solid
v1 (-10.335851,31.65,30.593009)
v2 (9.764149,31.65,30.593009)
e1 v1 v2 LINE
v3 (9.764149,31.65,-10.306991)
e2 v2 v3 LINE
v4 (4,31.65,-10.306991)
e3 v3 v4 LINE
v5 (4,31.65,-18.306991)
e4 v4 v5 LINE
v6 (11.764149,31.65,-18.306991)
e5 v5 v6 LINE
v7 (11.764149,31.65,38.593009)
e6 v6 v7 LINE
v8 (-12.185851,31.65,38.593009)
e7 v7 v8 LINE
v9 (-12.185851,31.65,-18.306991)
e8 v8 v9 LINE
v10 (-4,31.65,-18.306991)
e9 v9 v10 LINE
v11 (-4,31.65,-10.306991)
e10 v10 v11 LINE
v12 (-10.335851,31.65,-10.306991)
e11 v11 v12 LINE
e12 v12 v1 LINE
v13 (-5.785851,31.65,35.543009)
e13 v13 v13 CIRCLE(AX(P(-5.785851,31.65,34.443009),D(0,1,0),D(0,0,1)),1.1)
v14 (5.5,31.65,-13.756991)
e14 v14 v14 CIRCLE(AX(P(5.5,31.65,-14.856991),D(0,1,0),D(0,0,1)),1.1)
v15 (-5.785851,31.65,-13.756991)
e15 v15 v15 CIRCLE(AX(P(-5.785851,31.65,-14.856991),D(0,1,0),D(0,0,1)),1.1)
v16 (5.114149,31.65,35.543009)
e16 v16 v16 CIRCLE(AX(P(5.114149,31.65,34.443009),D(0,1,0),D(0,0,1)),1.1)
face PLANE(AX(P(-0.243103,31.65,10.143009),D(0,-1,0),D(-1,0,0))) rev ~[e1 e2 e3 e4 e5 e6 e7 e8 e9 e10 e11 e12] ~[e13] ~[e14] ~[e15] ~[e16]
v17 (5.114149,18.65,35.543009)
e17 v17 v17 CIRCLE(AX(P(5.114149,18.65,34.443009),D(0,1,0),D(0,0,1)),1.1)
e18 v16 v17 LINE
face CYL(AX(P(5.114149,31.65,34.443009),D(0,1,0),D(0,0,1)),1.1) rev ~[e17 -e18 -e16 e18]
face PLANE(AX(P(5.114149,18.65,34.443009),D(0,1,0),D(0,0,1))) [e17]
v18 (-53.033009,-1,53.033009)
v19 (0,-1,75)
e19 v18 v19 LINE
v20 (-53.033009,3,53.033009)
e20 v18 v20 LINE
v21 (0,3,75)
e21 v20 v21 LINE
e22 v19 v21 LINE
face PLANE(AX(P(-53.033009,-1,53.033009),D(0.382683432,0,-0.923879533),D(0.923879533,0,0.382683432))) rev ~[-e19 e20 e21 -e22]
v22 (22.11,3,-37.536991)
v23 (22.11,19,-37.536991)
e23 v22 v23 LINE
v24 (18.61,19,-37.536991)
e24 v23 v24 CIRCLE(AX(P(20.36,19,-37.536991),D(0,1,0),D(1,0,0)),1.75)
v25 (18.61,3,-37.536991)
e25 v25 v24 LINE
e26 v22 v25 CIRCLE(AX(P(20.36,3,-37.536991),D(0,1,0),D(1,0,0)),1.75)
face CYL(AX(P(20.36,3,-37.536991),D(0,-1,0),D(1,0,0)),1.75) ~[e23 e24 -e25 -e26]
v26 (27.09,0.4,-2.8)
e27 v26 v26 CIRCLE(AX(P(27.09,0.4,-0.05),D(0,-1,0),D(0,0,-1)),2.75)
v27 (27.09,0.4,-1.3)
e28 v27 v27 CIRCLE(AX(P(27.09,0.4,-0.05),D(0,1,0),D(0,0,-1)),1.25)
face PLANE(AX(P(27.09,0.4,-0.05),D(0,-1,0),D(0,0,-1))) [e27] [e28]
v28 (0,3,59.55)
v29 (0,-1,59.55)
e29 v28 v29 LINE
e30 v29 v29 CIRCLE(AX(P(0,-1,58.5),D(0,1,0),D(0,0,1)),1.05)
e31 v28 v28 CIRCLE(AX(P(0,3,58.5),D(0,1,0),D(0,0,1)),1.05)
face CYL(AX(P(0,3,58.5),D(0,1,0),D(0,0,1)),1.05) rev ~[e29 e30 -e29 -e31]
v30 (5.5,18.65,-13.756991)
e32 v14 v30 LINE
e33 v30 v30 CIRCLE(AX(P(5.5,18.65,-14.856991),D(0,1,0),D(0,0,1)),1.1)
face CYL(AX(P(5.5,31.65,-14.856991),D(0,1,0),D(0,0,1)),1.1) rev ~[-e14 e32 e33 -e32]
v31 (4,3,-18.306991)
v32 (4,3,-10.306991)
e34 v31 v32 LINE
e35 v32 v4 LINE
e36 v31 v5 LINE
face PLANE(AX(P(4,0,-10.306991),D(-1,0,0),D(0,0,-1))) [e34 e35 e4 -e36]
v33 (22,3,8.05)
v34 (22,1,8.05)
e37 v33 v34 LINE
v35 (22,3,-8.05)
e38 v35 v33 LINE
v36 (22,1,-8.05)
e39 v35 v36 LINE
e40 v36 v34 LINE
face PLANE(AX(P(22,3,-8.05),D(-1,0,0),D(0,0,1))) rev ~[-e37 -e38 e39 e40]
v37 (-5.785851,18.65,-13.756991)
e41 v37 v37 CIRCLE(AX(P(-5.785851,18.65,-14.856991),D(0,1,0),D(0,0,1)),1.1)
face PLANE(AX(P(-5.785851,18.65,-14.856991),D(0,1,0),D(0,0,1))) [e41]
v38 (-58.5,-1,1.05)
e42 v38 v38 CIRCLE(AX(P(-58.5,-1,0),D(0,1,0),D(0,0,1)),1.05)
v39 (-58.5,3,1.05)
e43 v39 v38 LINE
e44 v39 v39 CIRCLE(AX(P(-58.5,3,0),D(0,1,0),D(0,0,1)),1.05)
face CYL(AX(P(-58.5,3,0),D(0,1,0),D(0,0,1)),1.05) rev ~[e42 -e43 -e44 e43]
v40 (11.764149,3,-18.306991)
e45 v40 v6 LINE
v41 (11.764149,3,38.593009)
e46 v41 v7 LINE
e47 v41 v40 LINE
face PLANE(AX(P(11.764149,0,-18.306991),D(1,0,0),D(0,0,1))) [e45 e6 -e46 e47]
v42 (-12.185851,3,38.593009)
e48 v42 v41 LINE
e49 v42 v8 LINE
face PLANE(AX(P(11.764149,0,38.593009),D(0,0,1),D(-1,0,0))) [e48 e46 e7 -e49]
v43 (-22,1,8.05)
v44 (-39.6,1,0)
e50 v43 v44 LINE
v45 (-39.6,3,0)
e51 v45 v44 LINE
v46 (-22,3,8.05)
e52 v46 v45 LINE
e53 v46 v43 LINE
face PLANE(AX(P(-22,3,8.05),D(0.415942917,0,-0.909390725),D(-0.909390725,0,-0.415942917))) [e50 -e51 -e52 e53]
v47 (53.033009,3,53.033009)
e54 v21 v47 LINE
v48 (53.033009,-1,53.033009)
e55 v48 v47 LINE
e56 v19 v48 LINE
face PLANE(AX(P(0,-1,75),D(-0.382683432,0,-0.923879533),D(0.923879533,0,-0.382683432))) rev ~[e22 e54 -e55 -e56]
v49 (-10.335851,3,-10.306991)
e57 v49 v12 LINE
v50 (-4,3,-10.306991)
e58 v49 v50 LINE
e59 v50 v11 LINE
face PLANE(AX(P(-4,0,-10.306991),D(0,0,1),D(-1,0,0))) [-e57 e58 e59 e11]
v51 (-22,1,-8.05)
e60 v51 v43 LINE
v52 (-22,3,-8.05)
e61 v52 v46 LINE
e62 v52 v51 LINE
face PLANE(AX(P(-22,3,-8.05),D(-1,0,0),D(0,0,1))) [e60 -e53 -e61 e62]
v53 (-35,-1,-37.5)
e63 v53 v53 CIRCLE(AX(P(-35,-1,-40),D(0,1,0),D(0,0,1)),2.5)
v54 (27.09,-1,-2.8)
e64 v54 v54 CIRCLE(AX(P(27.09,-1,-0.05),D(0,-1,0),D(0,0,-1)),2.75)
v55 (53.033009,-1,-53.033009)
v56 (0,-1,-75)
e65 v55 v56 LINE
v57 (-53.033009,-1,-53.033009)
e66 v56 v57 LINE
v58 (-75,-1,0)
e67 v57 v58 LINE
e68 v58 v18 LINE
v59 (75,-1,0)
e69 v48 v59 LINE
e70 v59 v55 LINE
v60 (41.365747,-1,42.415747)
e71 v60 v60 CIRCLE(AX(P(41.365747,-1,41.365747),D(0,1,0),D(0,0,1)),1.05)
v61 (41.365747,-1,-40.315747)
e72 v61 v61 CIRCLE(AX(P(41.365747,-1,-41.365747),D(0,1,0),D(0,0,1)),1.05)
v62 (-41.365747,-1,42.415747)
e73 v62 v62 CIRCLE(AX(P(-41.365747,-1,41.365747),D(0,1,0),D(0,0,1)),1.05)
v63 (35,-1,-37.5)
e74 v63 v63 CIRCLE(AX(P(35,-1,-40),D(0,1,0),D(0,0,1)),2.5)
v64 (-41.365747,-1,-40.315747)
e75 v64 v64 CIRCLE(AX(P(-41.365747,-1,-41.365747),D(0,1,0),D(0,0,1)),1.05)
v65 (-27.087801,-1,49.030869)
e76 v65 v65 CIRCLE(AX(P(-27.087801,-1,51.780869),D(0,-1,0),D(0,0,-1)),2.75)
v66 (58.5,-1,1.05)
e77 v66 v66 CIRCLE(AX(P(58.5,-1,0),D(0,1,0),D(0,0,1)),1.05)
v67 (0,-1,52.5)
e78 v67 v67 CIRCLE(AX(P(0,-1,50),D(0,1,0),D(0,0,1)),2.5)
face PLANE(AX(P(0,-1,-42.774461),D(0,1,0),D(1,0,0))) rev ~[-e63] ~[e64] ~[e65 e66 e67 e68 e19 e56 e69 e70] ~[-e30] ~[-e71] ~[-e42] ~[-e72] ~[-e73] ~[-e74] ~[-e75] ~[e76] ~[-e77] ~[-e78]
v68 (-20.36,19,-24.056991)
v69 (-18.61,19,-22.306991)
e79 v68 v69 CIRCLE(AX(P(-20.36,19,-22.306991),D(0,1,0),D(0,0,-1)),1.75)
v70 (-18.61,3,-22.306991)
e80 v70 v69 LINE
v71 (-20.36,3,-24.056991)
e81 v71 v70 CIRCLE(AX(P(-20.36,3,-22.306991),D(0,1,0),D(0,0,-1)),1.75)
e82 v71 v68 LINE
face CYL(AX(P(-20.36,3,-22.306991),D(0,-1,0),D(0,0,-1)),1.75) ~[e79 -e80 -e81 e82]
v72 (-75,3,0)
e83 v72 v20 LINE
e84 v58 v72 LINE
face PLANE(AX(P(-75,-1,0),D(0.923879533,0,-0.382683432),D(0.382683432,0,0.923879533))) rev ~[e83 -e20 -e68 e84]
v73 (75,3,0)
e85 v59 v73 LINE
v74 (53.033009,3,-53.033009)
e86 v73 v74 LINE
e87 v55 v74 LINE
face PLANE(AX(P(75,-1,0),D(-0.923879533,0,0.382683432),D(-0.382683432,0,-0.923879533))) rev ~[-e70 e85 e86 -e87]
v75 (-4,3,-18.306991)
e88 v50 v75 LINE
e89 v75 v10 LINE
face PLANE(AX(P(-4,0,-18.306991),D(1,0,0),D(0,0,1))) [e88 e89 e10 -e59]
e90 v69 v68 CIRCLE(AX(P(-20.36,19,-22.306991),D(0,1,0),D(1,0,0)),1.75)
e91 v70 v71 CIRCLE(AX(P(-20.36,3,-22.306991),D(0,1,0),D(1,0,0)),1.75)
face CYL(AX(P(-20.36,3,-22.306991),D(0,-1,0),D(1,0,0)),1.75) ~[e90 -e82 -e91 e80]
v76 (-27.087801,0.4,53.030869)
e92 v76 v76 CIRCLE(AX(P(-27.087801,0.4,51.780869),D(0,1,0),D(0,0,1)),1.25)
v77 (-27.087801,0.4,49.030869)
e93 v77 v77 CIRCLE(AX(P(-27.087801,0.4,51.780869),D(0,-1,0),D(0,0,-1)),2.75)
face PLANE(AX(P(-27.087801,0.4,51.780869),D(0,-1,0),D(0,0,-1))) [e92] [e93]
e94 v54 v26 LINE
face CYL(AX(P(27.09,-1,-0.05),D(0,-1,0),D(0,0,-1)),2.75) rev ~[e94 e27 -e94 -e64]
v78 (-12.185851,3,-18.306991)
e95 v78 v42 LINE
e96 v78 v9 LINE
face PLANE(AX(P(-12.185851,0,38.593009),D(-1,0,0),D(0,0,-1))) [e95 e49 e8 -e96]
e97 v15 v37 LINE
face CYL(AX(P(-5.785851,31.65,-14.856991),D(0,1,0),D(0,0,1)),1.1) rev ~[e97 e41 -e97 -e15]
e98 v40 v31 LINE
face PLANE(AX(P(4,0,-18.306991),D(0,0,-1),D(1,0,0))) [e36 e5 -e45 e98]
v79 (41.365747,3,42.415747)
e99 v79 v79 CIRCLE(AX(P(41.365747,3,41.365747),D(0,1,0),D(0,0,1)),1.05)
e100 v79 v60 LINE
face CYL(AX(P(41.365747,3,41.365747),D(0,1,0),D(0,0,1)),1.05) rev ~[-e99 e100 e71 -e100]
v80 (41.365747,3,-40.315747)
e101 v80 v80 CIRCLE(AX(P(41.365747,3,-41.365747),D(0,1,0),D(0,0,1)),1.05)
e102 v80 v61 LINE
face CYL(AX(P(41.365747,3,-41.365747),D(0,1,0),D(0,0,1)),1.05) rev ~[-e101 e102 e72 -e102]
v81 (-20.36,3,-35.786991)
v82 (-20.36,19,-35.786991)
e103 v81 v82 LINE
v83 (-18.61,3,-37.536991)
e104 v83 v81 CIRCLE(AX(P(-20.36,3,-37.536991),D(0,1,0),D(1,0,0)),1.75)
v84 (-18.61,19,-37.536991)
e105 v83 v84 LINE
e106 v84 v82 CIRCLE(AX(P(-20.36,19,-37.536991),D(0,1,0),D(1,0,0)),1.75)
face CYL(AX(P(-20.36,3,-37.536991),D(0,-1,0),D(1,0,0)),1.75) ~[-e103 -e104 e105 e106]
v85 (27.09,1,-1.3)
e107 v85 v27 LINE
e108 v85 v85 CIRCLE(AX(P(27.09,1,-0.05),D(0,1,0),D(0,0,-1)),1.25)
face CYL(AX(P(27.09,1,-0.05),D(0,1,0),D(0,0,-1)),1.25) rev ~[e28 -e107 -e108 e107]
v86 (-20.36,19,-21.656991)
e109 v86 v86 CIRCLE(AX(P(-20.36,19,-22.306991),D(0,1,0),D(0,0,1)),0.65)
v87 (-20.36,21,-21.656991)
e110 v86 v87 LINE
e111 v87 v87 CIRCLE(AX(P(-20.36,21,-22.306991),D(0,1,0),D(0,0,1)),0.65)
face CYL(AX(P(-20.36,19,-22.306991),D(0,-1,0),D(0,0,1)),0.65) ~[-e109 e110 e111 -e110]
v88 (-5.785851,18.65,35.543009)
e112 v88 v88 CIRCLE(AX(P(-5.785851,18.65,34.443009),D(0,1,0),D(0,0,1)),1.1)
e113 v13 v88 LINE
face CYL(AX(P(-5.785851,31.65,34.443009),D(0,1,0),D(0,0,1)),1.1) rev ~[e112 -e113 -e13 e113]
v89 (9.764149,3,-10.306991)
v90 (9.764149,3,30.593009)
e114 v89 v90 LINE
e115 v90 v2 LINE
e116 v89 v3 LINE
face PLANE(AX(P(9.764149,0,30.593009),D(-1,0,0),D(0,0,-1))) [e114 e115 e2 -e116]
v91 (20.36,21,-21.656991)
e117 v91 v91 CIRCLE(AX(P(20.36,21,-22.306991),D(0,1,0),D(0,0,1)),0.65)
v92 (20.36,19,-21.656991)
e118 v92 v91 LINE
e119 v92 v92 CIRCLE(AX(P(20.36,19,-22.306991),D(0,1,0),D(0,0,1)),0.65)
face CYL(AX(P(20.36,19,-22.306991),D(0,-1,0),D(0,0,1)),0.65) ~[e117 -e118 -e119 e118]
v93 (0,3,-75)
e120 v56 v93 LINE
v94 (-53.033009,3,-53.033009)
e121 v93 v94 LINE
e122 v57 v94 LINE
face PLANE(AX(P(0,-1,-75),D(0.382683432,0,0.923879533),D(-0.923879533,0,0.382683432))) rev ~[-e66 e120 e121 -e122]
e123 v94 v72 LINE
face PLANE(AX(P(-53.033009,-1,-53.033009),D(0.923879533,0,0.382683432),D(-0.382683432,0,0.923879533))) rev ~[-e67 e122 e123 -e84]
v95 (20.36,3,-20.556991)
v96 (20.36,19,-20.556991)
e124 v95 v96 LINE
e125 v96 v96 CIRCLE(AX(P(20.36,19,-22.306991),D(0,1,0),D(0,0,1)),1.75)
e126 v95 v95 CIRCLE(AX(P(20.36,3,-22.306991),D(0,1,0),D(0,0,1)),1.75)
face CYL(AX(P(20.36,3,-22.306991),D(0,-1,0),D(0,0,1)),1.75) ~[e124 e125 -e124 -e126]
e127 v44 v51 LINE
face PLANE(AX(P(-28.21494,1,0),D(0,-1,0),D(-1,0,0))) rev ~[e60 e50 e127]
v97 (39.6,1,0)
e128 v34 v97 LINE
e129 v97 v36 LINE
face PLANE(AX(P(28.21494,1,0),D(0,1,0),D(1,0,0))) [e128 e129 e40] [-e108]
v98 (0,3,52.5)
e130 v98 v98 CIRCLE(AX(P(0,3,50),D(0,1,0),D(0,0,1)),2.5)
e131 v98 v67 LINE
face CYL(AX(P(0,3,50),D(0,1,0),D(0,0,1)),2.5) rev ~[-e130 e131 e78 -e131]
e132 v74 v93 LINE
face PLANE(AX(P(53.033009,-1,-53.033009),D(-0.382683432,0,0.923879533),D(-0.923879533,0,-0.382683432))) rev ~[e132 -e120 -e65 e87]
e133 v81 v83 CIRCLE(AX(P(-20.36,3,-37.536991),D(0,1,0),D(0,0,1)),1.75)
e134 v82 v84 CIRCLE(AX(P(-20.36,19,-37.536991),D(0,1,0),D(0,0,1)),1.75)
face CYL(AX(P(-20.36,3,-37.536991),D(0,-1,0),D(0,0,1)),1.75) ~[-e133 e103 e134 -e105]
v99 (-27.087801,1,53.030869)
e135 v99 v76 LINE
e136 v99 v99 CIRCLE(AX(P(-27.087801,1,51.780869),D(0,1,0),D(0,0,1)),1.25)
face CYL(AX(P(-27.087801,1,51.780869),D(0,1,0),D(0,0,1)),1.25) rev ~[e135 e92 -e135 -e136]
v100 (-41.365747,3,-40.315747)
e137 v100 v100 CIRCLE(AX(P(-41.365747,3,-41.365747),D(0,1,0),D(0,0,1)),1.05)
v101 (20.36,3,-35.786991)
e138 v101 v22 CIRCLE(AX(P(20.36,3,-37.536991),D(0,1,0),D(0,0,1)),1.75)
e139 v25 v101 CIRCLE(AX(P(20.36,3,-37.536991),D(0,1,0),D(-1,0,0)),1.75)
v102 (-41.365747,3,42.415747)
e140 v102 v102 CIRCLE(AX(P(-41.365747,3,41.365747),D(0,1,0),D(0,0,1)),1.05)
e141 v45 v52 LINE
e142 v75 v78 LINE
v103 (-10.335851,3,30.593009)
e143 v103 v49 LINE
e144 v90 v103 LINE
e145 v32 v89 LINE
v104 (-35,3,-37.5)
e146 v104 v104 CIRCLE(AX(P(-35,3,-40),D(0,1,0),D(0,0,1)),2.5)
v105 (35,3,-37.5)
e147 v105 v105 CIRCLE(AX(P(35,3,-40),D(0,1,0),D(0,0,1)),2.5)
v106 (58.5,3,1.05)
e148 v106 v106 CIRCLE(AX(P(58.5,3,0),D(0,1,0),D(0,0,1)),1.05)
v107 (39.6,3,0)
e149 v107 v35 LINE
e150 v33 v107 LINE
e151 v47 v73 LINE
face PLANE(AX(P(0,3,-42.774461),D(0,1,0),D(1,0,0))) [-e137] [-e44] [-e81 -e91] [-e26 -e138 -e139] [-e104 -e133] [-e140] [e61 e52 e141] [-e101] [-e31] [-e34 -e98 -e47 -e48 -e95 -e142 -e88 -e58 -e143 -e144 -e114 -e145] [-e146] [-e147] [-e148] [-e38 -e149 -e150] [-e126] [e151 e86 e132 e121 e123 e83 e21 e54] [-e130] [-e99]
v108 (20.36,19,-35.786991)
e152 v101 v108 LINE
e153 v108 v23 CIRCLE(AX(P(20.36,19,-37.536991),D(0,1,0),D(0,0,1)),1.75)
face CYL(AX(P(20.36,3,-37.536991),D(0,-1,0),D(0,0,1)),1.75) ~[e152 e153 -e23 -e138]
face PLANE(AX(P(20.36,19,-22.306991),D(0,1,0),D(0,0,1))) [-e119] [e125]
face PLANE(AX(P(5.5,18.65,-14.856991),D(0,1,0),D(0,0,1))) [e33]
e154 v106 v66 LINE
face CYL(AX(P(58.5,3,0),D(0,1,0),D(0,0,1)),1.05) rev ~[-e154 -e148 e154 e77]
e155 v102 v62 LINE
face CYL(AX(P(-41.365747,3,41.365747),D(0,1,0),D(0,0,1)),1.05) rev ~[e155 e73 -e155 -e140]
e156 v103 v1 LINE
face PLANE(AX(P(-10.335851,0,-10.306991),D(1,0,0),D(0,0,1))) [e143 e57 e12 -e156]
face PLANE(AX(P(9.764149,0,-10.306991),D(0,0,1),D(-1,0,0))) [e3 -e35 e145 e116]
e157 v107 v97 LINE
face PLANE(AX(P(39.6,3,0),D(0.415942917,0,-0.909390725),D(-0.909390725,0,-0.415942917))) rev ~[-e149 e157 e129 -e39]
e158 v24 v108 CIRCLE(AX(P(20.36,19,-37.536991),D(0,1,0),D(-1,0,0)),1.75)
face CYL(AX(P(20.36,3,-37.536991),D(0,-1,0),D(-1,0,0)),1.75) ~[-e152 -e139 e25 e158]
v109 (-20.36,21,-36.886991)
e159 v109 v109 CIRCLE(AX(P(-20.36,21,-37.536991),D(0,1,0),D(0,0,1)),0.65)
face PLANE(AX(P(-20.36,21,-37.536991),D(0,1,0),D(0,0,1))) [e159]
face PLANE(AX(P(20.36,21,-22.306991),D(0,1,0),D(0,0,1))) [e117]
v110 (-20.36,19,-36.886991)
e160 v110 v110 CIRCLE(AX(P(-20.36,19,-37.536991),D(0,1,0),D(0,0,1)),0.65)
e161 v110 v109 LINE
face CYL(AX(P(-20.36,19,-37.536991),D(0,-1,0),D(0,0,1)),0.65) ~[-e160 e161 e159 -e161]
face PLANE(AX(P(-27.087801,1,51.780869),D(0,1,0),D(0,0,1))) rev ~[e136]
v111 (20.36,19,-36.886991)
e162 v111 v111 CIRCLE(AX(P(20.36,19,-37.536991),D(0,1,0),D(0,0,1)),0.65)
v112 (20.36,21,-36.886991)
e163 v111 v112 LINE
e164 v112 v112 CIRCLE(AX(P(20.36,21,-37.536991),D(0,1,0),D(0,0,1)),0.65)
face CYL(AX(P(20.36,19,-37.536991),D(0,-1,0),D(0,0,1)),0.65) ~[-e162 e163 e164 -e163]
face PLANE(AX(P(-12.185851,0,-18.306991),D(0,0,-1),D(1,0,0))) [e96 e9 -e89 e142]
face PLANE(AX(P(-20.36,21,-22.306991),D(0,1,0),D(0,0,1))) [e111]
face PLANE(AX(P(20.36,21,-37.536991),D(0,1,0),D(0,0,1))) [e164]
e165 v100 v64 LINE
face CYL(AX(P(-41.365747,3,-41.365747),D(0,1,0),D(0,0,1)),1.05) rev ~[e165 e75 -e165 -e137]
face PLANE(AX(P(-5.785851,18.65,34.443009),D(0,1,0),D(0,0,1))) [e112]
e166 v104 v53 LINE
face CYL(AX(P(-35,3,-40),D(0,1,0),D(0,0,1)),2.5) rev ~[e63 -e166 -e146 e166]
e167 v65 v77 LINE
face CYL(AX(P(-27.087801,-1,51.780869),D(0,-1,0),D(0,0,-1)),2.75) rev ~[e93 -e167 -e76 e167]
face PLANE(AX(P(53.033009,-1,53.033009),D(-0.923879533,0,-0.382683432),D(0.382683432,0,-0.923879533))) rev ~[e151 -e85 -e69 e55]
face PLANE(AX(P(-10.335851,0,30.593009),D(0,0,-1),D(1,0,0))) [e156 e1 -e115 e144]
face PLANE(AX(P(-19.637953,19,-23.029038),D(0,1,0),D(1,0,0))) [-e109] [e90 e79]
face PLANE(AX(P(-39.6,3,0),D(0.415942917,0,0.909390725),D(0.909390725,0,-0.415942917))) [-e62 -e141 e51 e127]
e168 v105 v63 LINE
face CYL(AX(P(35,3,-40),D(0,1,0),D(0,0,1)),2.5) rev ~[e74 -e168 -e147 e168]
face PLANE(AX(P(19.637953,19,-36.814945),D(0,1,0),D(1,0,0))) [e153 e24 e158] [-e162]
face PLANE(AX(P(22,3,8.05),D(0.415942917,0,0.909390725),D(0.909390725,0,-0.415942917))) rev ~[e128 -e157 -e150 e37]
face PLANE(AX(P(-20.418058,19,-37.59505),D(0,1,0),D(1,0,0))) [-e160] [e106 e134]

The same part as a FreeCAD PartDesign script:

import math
import FreeCAD as App
import Part
import Sketcher
Q = App.Units.Quantity

doc = App.newDocument("Part")
body = doc.addObject("PartDesign::Body", "Body")

# Sketch on XZ plane
sketch1 = body.newObject("Sketcher::SketchObject", "Sketch")
sketch1.AttachmentSupport = (doc.getObject("XZ_Plane"), [""])
sketch1.MapMode = "FlatFace"
sketch1.addGeometry(Part.LineSegment(App.Vector(-53, 53, 0), App.Vector(0, 75, 0)), False)
sketch1.addGeometry(Part.LineSegment(App.Vector(0, 75, 0), App.Vector(53, 53, 0)), False)
sketch1.addGeometry(Part.LineSegment(App.Vector(53, 53, 0), App.Vector(75, 0, 0)), False)
sketch1.addGeometry(Part.LineSegment(App.Vector(75, 0, 0), App.Vector(53, -53, 0)), False)
sketch1.addGeometry(Part.LineSegment(App.Vector(53, -53, 0), App.Vector(0, -75, 0)), False)
sketch1.addGeometry(Part.LineSegment(App.Vector(0, -75, 0), App.Vector(-53, -53, 0)), False)
sketch1.addGeometry(Part.LineSegment(App.Vector(-53, -53, 0), App.Vector(-75, 0, 0)), False)
sketch1.addGeometry(Part.LineSegment(App.Vector(-75, 0, 0), App.Vector(-53, 53, 0)), False)
sketch1.addConstraint(Sketcher.Constraint("Coincident", 0, 2, 1, 1))
sketch1.addConstraint(Sketcher.Constraint("Coincident", 1, 2, 2, 1))
sketch1.addConstraint(Sketcher.Constraint("Coincident", 2, 2, 3, 1))
sketch1.addConstraint(Sketcher.Constraint("Coincident", 3, 2, 4, 1))
sketch1.addConstraint(Sketcher.Constraint("Coincident", 4, 2, 5, 1))
sketch1.addConstraint(Sketcher.Constraint("Coincident", 5, 2, 6, 1))
sketch1.addConstraint(Sketcher.Constraint("Coincident", 6, 2, 7, 1))
sketch1.addConstraint(Sketcher.Constraint("Coincident", 7, 2, 0, 1))
sketch1.addConstraint(Sketcher.Constraint("Symmetric", 0, 2, 4, 2, -1, 1))
sketch1.addConstraint(Sketcher.Constraint("Symmetric", 1, 2, 5, 2, -1, 1))
sketch1.addConstraint(Sketcher.Constraint("Symmetric", 2, 2, 6, 2, -1, 1))
sketch1.addConstraint(Sketcher.Constraint("Symmetric", 3, 2, 7, 2, -1, 1))
sketch1.addConstraint(Sketcher.Constraint("Symmetric", 3, 2, 5, 2, -2))
sketch1.addConstraint(Sketcher.Constraint("PointOnObject", 0, 2, -2))
sketch1.addConstraint(Sketcher.Constraint("PointOnObject", 2, 2, -1))
sketch1.addConstraint(Sketcher.Constraint("Perpendicular", 0, 2))
sketch1.addConstraint(Sketcher.Constraint("Equal", 1, 2))
sketch1.addConstraint(Sketcher.Constraint("DistanceY", -1, 1, 0, 2, Q("75 mm")))
sketch1.addConstraint(Sketcher.Constraint("Angle", 0, Q("22.5 deg")))
pad1 = body.newObject("PartDesign::Pad", "Pad")
pad1.Profile = sketch1
pad1.Type = "TwoLengths"
pad1.Length = 3
pad1.Length2 = 1
pad1.Reversed = True

# Sketch on XZ plane
sketch2 = body.newObject("Sketcher::SketchObject", "Sketch001")
sketch2.AttachmentSupport = (doc.getObject("XZ_Plane"), [""])
sketch2.MapMode = "FlatFace"
sketch2.addGeometry(Part.LineSegment(App.Vector(-4, -10, 0), App.Vector(-4, -18, 0)), False)
sketch2.addGeometry(Part.LineSegment(App.Vector(-4, -18, 0), App.Vector(-12, -18, 0)), False)
sketch2.addGeometry(Part.LineSegment(App.Vector(-12, -18, 0), App.Vector(-12, 39, 0)), False)
sketch2.addGeometry(Part.LineSegment(App.Vector(-12, 39, 0), App.Vector(12, 39, 0)), False)
sketch2.addGeometry(Part.LineSegment(App.Vector(12, 39, 0), App.Vector(12, -18, 0)), False)
sketch2.addGeometry(Part.LineSegment(App.Vector(12, -18, 0), App.Vector(4, -18, 0)), False)
sketch2.addGeometry(Part.LineSegment(App.Vector(4, -18, 0), App.Vector(4, -10, 0)), False)
sketch2.addGeometry(Part.LineSegment(App.Vector(4, -10, 0), App.Vector(10, -10, 0)), False)
sketch2.addGeometry(Part.LineSegment(App.Vector(10, -10, 0), App.Vector(10, 31, 0)), False)
sketch2.addGeometry(Part.LineSegment(App.Vector(10, 31, 0), App.Vector(-10, 31, 0)), False)
sketch2.addGeometry(Part.LineSegment(App.Vector(-10, 31, 0), App.Vector(-10, -10, 0)), False)
sketch2.addGeometry(Part.LineSegment(App.Vector(-10, -10, 0), App.Vector(-4, -10, 0)), False)
sketch2.addConstraint(Sketcher.Constraint("Coincident", 0, 2, 1, 1))
sketch2.addConstraint(Sketcher.Constraint("Coincident", 1, 2, 2, 1))
sketch2.addConstraint(Sketcher.Constraint("Coincident", 2, 2, 3, 1))
sketch2.addConstraint(Sketcher.Constraint("Coincident", 3, 2, 4, 1))
sketch2.addConstraint(Sketcher.Constraint("Coincident", 4, 2, 5, 1))
sketch2.addConstraint(Sketcher.Constraint("Coincident", 5, 2, 6, 1))
sketch2.addConstraint(Sketcher.Constraint("Coincident", 6, 2, 7, 1))
sketch2.addConstraint(Sketcher.Constraint("Coincident", 7, 2, 8, 1))
sketch2.addConstraint(Sketcher.Constraint("Coincident", 8, 2, 9, 1))
sketch2.addConstraint(Sketcher.Constraint("Coincident", 9, 2, 10, 1))
sketch2.addConstraint(Sketcher.Constraint("Coincident", 10, 2, 11, 1))
sketch2.addConstraint(Sketcher.Constraint("Coincident", 11, 2, 0, 1))
sketch2.addConstraint(Sketcher.Constraint("Vertical", 0))
sketch2.addConstraint(Sketcher.Constraint("Horizontal", 1))
sketch2.addConstraint(Sketcher.Constraint("Vertical", 2))
sketch2.addConstraint(Sketcher.Constraint("Horizontal", 3))
sketch2.addConstraint(Sketcher.Constraint("Vertical", 4))
sketch2.addConstraint(Sketcher.Constraint("Horizontal", 5))
sketch2.addConstraint(Sketcher.Constraint("Vertical", 6))
sketch2.addConstraint(Sketcher.Constraint("Horizontal", 7))
sketch2.addConstraint(Sketcher.Constraint("Vertical", 8))
sketch2.addConstraint(Sketcher.Constraint("Horizontal", 9))
sketch2.addConstraint(Sketcher.Constraint("Vertical", 10))
sketch2.addConstraint(Sketcher.Constraint("Horizontal", 11))
sketch2.addConstraint(Sketcher.Constraint("Symmetric", 0, 2, 5, 2, -2))
sketch2.addConstraint(Sketcher.Constraint("Horizontal", 7, 2, 10, 2))
sketch2.addConstraint(Sketcher.Constraint("DistanceY", 0, 2, 0, 1, Q("8 mm")))
sketch2.addConstraint(Sketcher.Constraint("DistanceX", 9, 2, 9, 1, Q("20.1 mm")))
sketch2.addConstraint(Sketcher.Constraint("DistanceY", 2, 1, 2, 2, Q("56.9 mm")))
sketch2.addConstraint(Sketcher.Constraint("DistanceY", 8, 1, 8, 2, Q("40.9 mm")))
sketch2.addConstraint(Sketcher.Constraint("DistanceX", 0, 2, -1, 1, Q("4 mm")))
sketch2.addConstraint(Sketcher.Constraint("DistanceX", 7, 2, 4, 2, Q("2 mm")))
sketch2.addConstraint(Sketcher.Constraint("DistanceX", 3, 1, 3, 2, Q("23.95 mm")))
sketch2.addConstraint(Sketcher.Constraint("DistanceX", 1, 2, 1, 1, Q("8.185851 mm")))
sketch2.addConstraint(Sketcher.Constraint("DistanceY", 0, 2, -1, 1, Q("18.306991 mm")))
pad2 = body.newObject("PartDesign::Pad", "Pad001")
pad2.Profile = sketch2
pad2.Length = 31.65
pad2.Reversed = True

# Sketch on XZ plane
sketch3 = body.newObject("Sketcher::SketchObject", "Sketch002")
sketch3.AttachmentSupport = (doc.getObject("XZ_Plane"), [""])
sketch3.MapMode = "FlatFace"
sketch3.AttachmentOffset = App.Placement(App.Vector(0, 0, -3), App.Rotation())
sketch3.addGeometry(Part.Circle(App.Vector(35, -40, 0), App.Vector(0, 0, 1), 2.5), False)
sketch3.addGeometry(Part.Circle(App.Vector(-35, -40, 0), App.Vector(0, 0, 1), 2.5), False)
sketch3.addGeometry(Part.Circle(App.Vector(0, 50, 0), App.Vector(0, 0, 1), 2.5), False)
sketch3.addConstraint(Sketcher.Constraint("Equal", 0, 1))
sketch3.addConstraint(Sketcher.Constraint("Equal", 1, 2))
sketch3.addConstraint(Sketcher.Constraint("Symmetric", 0, 3, 1, 3, -2))
sketch3.addConstraint(Sketcher.Constraint("PointOnObject", 2, 3, -2))
sketch3.addConstraint(Sketcher.Constraint("Diameter", 0, Q("5 mm")))
sketch3.addConstraint(Sketcher.Constraint("DistanceX", -1, 1, 0, 3, Q("35 mm")))
sketch3.addConstraint(Sketcher.Constraint("DistanceY", 0, 3, -1, 1, Q("40 mm")))
sketch3.addConstraint(Sketcher.Constraint("DistanceY", -1, 1, 2, 3, Q("50 mm")))
pocket1 = body.newObject("PartDesign::Pocket", "Pocket")
pocket1.Profile = sketch3
pocket1.Type = "ThroughAll"
pocket1.Reversed = True

# Sketch on XZ plane
sketch4 = body.newObject("Sketcher::SketchObject", "Sketch003")
sketch4.AttachmentSupport = (doc.getObject("XZ_Plane"), [""])
sketch4.MapMode = "FlatFace"
sketch4.AttachmentOffset = App.Placement(App.Vector(0, 0, -3), App.Rotation())
sketch4.addGeometry(Part.LineSegment(App.Vector(-22, 8, 0), App.Vector(-22, -8, 0)), False)
sketch4.addGeometry(Part.LineSegment(App.Vector(-22, -8, 0), App.Vector(-40, 0, 0)), False)
sketch4.addGeometry(Part.LineSegment(App.Vector(-40, 0, 0), App.Vector(-22, 8, 0)), False)
sketch4.addGeometry(Part.LineSegment(App.Vector(22, 8, 0), App.Vector(40, 0, 0)), False)
sketch4.addGeometry(Part.LineSegment(App.Vector(40, 0, 0), App.Vector(22, -8, 0)), False)
sketch4.addGeometry(Part.LineSegment(App.Vector(22, -8, 0), App.Vector(22, 8, 0)), False)
sketch4.addConstraint(Sketcher.Constraint("Coincident", 0, 2, 1, 1))
sketch4.addConstraint(Sketcher.Constraint("Coincident", 1, 2, 2, 1))
sketch4.addConstraint(Sketcher.Constraint("Coincident", 2, 2, 0, 1))
sketch4.addConstraint(Sketcher.Constraint("Coincident", 3, 2, 4, 1))
sketch4.addConstraint(Sketcher.Constraint("Coincident", 4, 2, 5, 1))
sketch4.addConstraint(Sketcher.Constraint("Coincident", 5, 2, 3, 1))
sketch4.addConstraint(Sketcher.Constraint("Vertical", 0))
sketch4.addConstraint(Sketcher.Constraint("Vertical", 5))
sketch4.addConstraint(Sketcher.Constraint("Symmetric", 1, 2, 3, 2, -1, 1))
sketch4.addConstraint(Sketcher.Constraint("Symmetric", 2, 2, 4, 2, -1, 1))
sketch4.addConstraint(Sketcher.Constraint("PointOnObject", 1, 2, -1))
sketch4.addConstraint(Sketcher.Constraint("Parallel", 1, 3))
sketch4.addConstraint(Sketcher.Constraint("Horizontal", 0, 2, 4, 2))
sketch4.addConstraint(Sketcher.Constraint("DistanceY", 0, 2, 0, 1, Q("16.1 mm")))
sketch4.addConstraint(Sketcher.Constraint("DistanceX", 0, 2, -1, 1, Q("22 mm")))
sketch4.addConstraint(Sketcher.Constraint("DistanceX", 1, 2, -1, 1, Q("39.6 mm")))
pocket2 = body.newObject("PartDesign::Pocket", "Pocket001")
pocket2.Profile = sketch4
pocket2.Length = 2
pocket2.Reversed = True

# Sketch on XZ plane
sketch5 = body.newObject("Sketcher::SketchObject", "Sketch004")
sketch5.AttachmentSupport = (doc.getObject("XZ_Plane"), [""])
sketch5.MapMode = "FlatFace"
sketch5.AttachmentOffset = App.Placement(App.Vector(0, 0, -1), App.Rotation())
sketch5.addGeometry(Part.Circle(App.Vector(-27.1, 51.8, 0), App.Vector(0, 0, 1), 1.2), False)
sketch5.addGeometry(Part.Circle(App.Vector(27.1, -0.1, 0), App.Vector(0, 0, 1), 1.2), False)
sketch5.addConstraint(Sketcher.Constraint("Equal", 0, 1))
sketch5.addConstraint(Sketcher.Constraint("Diameter", 0, Q("2.5 mm")))
sketch5.addConstraint(Sketcher.Constraint("DistanceX", -1, 1, 1, 3, Q("27.09 mm")))
sketch5.addConstraint(Sketcher.Constraint("DistanceY", 1, 3, -1, 1, Q("0.05 mm")))
sketch5.addConstraint(Sketcher.Constraint("DistanceX", 0, 3, -1, 1, Q("27.087801 mm")))
sketch5.addConstraint(Sketcher.Constraint("DistanceY", -1, 1, 0, 3, Q("51.780869 mm")))
pocket3 = body.newObject("PartDesign::Pocket", "Pocket002")
pocket3.Profile = sketch5
pocket3.Type = "ThroughAll"
pocket3.Reversed = True

# Sketch on XZ plane
sketch6 = body.newObject("Sketcher::SketchObject", "Sketch005")
sketch6.AttachmentSupport = (doc.getObject("XZ_Plane"), [""])
sketch6.MapMode = "FlatFace"
sketch6.AttachmentOffset = App.Placement(App.Vector(0, 0, 1), App.Rotation())
sketch6.addGeometry(Part.Circle(App.Vector(-27.1, 51.8, 0), App.Vector(0, 0, 1), 2.8), False)
sketch6.addGeometry(Part.Circle(App.Vector(27.1, -0.1, 0), App.Vector(0, 0, 1), 2.8), False)
sketch6.addConstraint(Sketcher.Constraint("Equal", 0, 1))
sketch6.addConstraint(Sketcher.Constraint("Diameter", 0, Q("5.5 mm")))
sketch6.addConstraint(Sketcher.Constraint("DistanceX", -1, 1, 1, 3, Q("27.09 mm")))
sketch6.addConstraint(Sketcher.Constraint("DistanceY", 1, 3, -1, 1, Q("0.05 mm")))
sketch6.addConstraint(Sketcher.Constraint("DistanceX", 0, 3, -1, 1, Q("27.087801 mm")))
sketch6.addConstraint(Sketcher.Constraint("DistanceY", -1, 1, 0, 3, Q("51.780869 mm")))
pocket4 = body.newObject("PartDesign::Pocket", "Pocket003")
pocket4.Profile = sketch6
pocket4.Length = 1.4

# Sketch on XZ plane
sketch7 = body.newObject("Sketcher::SketchObject", "Sketch006")
sketch7.AttachmentSupport = (doc.getObject("XZ_Plane"), [""])
sketch7.MapMode = "FlatFace"
sketch7.AttachmentOffset = App.Placement(App.Vector(0, 0, -3), App.Rotation())
sketch7.addGeometry(Part.Circle(App.Vector(-58.5, 0, 0), App.Vector(0, 0, 1), 1.1), False)
sketch7.addGeometry(Part.Circle(App.Vector(-41.4, -41.4, 0), App.Vector(0, 0, 1), 1.1), False)
sketch7.addGeometry(Part.Circle(App.Vector(41.4, -41.4, 0), App.Vector(0, 0, 1), 1.1), False)
sketch7.addGeometry(Part.Circle(App.Vector(58.5, 0, 0), App.Vector(0, 0, 1), 1.1), False)
sketch7.addGeometry(Part.Circle(App.Vector(41.4, 41.4, 0), App.Vector(0, 0, 1), 1.1), False)
sketch7.addGeometry(Part.Circle(App.Vector(-41.4, 41.4, 0), App.Vector(0, 0, 1), 1.1), False)
sketch7.addGeometry(Part.Circle(App.Vector(0, 58.5, 0), App.Vector(0, 0, 1), 1.1), False)
sketch7.addConstraint(Sketcher.Constraint("Equal", 0, 1))
sketch7.addConstraint(Sketcher.Constraint("Equal", 1, 2))
sketch7.addConstraint(Sketcher.Constraint("Equal", 2, 3))
sketch7.addConstraint(Sketcher.Constraint("Equal", 3, 4))
sketch7.addConstraint(Sketcher.Constraint("Equal", 4, 5))
sketch7.addConstraint(Sketcher.Constraint("Equal", 5, 6))
sketch7.addConstraint(Sketcher.Constraint("Symmetric", 0, 3, 3, 3, -1, 1))
sketch7.addConstraint(Sketcher.Constraint("Symmetric", 1, 3, 4, 3, -1, 1))
sketch7.addConstraint(Sketcher.Constraint("Symmetric", 2, 3, 5, 3, -1, 1))
sketch7.addConstraint(Sketcher.Constraint("Symmetric", 1, 3, 2, 3, -2))
sketch7.addConstraint(Sketcher.Constraint("PointOnObject", 0, 3, -1))
sketch7.addConstraint(Sketcher.Constraint("PointOnObject", 6, 3, -2))
sketch7.addConstraint(Sketcher.Constraint("Diameter", 0, Q("2.1 mm")))
sketch7.addConstraint(Sketcher.Constraint("DistanceX", 0, 3, 3, 3, Q("117 mm")))
sketch7.addConstraint(Sketcher.Constraint("DistanceY", -1, 1, 6, 3, Q("58.5 mm")))
sketch7.addConstraint(Sketcher.Constraint("DistanceX", 1, 3, -1, 1, Q("41.365747 mm")))
sketch7.addConstraint(Sketcher.Constraint("DistanceY", 1, 3, -1, 1, Q("41.365747 mm")))
pocket5 = body.newObject("PartDesign::Pocket", "Pocket004")
pocket5.Profile = sketch7
pocket5.Length = 10
pocket5.Reversed = True

# Sketch on XZ plane
sketch8 = body.newObject("Sketcher::SketchObject", "Sketch007")
sketch8.AttachmentSupport = (doc.getObject("XZ_Plane"), [""])
sketch8.MapMode = "FlatFace"
sketch8.AttachmentOffset = App.Placement(App.Vector(0, 0, -3), App.Rotation())
sketch8.addGeometry(Part.ArcOfCircle(Part.Circle(App.Vector(20.4, -37.5, 0), App.Vector(0, 0, 1), 1.8), math.radians(90), math.radians(180)), False)
sketch8.addGeometry(Part.ArcOfCircle(Part.Circle(App.Vector(20.4, -37.5, 0), App.Vector(0, 0, 1), 1.8), math.radians(0), math.radians(90)), False)
sketch8.addGeometry(Part.ArcOfCircle(Part.Circle(App.Vector(20.4, -37.5, 0), App.Vector(0, 0, 1), 1.8), math.radians(180), math.radians(360)), False)
sketch8.addGeometry(Part.ArcOfCircle(Part.Circle(App.Vector(-20.4, -22.3, 0), App.Vector(0, 0, 1), 1.8), math.radians(-90), math.radians(0)), False)
sketch8.addGeometry(Part.ArcOfCircle(Part.Circle(App.Vector(-20.4, -22.3, 0), App.Vector(0, 0, 1), 1.8), math.radians(0), math.radians(270)), False)
sketch8.addGeometry(Part.ArcOfCircle(Part.Circle(App.Vector(-20.4, -37.5, 0), App.Vector(0, 0, 1), 1.8), math.radians(90), math.radians(360)), False)
sketch8.addGeometry(Part.ArcOfCircle(Part.Circle(App.Vector(-20.4, -37.5, 0), App.Vector(0, 0, 1), 1.8), math.radians(0), math.radians(90)), False)
sketch8.addGeometry(Part.Circle(App.Vector(20.4, -22.3, 0), App.Vector(0, 0, 1), 1.8), False)
sketch8.addConstraint(Sketcher.Constraint("Tangent", 0, 1, 1, 2))
sketch8.addConstraint(Sketcher.Constraint("Tangent", 1, 1, 2, 2))
sketch8.addConstraint(Sketcher.Constraint("Tangent", 2, 1, 0, 2))
sketch8.addConstraint(Sketcher.Constraint("Tangent", 3, 1, 4, 2))
sketch8.addConstraint(Sketcher.Constraint("Coincident", 4, 1, 3, 2))
sketch8.addConstraint(Sketcher.Constraint("Tangent", 5, 1, 6, 2))
sketch8.addConstraint(Sketcher.Constraint("Coincident", 6, 1, 5, 2))
sketch8.addConstraint(Sketcher.Constraint("Equal", 2, 3))
sketch8.addConstraint(Sketcher.Constraint("Equal", 4, 5))
sketch8.addConstraint(Sketcher.Constraint("Equal", 6, 7))
sketch8.addConstraint(Sketcher.Constraint("Symmetric", 0, 3, 5, 3, -2))
sketch8.addConstraint(Sketcher.Constraint("Symmetric", 3, 3, 7, 3, -2))
sketch8.addConstraint(Sketcher.Constraint("Horizontal", 6, 3, 1, 1))
sketch8.addConstraint(Sketcher.Constraint("Horizontal", 1, 1, 2, 1))
sketch8.addConstraint(Sketcher.Constraint("Horizontal", 7, 3, 4, 1))
sketch8.addConstraint(Sketcher.Constraint("Horizontal", 2, 1, 6, 1))
sketch8.addConstraint(Sketcher.Constraint("Vertical", 4, 3, 5, 3))
sketch8.addConstraint(Sketcher.Constraint("Vertical", 7, 3, 0, 1))
sketch8.addConstraint(Sketcher.Constraint("Vertical", 6, 3, 3, 1))
sketch8.addConstraint(Sketcher.Constraint("Vertical", 3, 1, 5, 1))
sketch8.addConstraint(Sketcher.Constraint("Diameter", 7, Q("3.5 mm")))
sketch8.addConstraint(Sketcher.Constraint("DistanceX", -1, 1, 0, 3, Q("20.36 mm")))
sketch8.addConstraint(Sketcher.Constraint("DistanceY", 0, 3, 3, 3, Q("15.23 mm")))
sketch8.addConstraint(Sketcher.Constraint("DistanceY", 0, 3, -1, 1, Q("37.536991 mm")))
pad3 = body.newObject("PartDesign::Pad", "Pad002")
pad3.Profile = sketch8
pad3.Length = 16
pad3.Reversed = True

# Sketch on XZ plane
sketch9 = body.newObject("Sketcher::SketchObject", "Sketch008")
sketch9.AttachmentSupport = (doc.getObject("XZ_Plane"), [""])
sketch9.MapMode = "FlatFace"
sketch9.AttachmentOffset = App.Placement(App.Vector(0, 0, -19), App.Rotation())
sketch9.addGeometry(Part.Circle(App.Vector(20.4, -22.3, 0), App.Vector(0, 0, 1), 0.7), False)
sketch9.addGeometry(Part.Circle(App.Vector(20.4, -37.5, 0), App.Vector(0, 0, 1), 0.7), False)
sketch9.addGeometry(Part.Circle(App.Vector(-20.4, -37.5, 0), App.Vector(0, 0, 1), 0.7), False)
sketch9.addGeometry(Part.Circle(App.Vector(-20.4, -22.3, 0), App.Vector(0, 0, 1), 0.7), False)
sketch9.addConstraint(Sketcher.Constraint("Equal", 0, 1))
sketch9.addConstraint(Sketcher.Constraint("Equal", 1, 2))
sketch9.addConstraint(Sketcher.Constraint("Equal", 2, 3))
sketch9.addConstraint(Sketcher.Constraint("Symmetric", 1, 3, 2, 3, -2))
sketch9.addConstraint(Sketcher.Constraint("Symmetric", 0, 3, 3, 3, -2))
sketch9.addConstraint(Sketcher.Constraint("Vertical", 0, 3, 1, 3))
sketch9.addConstraint(Sketcher.Constraint("Diameter", 0, Q("1.3 mm")))
sketch9.addConstraint(Sketcher.Constraint("DistanceX", -1, 1, 0, 3, Q("20.36 mm")))
sketch9.addConstraint(Sketcher.Constraint("DistanceY", 1, 3, 0, 3, Q("15.23 mm")))
sketch9.addConstraint(Sketcher.Constraint("DistanceY", 0, 3, -1, 1, Q("22.306991 mm")))
pad4 = body.newObject("PartDesign::Pad", "Pad003")
pad4.Profile = sketch9
pad4.Length = 2
pad4.Reversed = True

# Sketch on XZ plane
sketch10 = body.newObject("Sketcher::SketchObject", "Sketch009")
sketch10.AttachmentSupport = (doc.getObject("XZ_Plane"), [""])
sketch10.MapMode = "FlatFace"
sketch10.AttachmentOffset = App.Placement(App.Vector(0, 0, -31.65), App.Rotation())
sketch10.addGeometry(Part.Circle(App.Vector(-5.8, -14.9, 0), App.Vector(0, 0, 1), 1.1), False)
sketch10.addGeometry(Part.Circle(App.Vector(5.5, -14.9, 0), App.Vector(0, 0, 1), 1.1), False)
sketch10.addGeometry(Part.Circle(App.Vector(5.1, 34.4, 0), App.Vector(0, 0, 1), 1.1), False)
sketch10.addGeometry(Part.Circle(App.Vector(-5.8, 34.4, 0), App.Vector(0, 0, 1), 1.1), False)
sketch10.addConstraint(Sketcher.Constraint("Equal", 0, 1))
sketch10.addConstraint(Sketcher.Constraint("Equal", 1, 2))
sketch10.addConstraint(Sketcher.Constraint("Equal", 2, 3))
sketch10.addConstraint(Sketcher.Constraint("Horizontal", 0, 3, 1, 3))
sketch10.addConstraint(Sketcher.Constraint("Horizontal", 2, 3, 3, 3))
sketch10.addConstraint(Sketcher.Constraint("Vertical", 0, 3, 3, 3))
sketch10.addConstraint(Sketcher.Constraint("Diameter", 0, Q("2.2 mm")))
sketch10.addConstraint(Sketcher.Constraint("DistanceX", -1, 1, 1, 3, Q("5.5 mm")))
sketch10.addConstraint(Sketcher.Constraint("DistanceY", 1, 3, 2, 3, Q("49.3 mm")))
sketch10.addConstraint(Sketcher.Constraint("DistanceX", 0, 3, 2, 3, Q("10.9 mm")))
sketch10.addConstraint(Sketcher.Constraint("DistanceX", 0, 3, -1, 1, Q("5.785851 mm")))
sketch10.addConstraint(Sketcher.Constraint("DistanceY", 0, 3, -1, 1, Q("14.856991 mm")))
pocket6 = body.newObject("PartDesign::Pocket", "Pocket005")
pocket6.Profile = sketch10
pocket6.Length = 13
pocket6.Reversed = True

doc.recompute()
